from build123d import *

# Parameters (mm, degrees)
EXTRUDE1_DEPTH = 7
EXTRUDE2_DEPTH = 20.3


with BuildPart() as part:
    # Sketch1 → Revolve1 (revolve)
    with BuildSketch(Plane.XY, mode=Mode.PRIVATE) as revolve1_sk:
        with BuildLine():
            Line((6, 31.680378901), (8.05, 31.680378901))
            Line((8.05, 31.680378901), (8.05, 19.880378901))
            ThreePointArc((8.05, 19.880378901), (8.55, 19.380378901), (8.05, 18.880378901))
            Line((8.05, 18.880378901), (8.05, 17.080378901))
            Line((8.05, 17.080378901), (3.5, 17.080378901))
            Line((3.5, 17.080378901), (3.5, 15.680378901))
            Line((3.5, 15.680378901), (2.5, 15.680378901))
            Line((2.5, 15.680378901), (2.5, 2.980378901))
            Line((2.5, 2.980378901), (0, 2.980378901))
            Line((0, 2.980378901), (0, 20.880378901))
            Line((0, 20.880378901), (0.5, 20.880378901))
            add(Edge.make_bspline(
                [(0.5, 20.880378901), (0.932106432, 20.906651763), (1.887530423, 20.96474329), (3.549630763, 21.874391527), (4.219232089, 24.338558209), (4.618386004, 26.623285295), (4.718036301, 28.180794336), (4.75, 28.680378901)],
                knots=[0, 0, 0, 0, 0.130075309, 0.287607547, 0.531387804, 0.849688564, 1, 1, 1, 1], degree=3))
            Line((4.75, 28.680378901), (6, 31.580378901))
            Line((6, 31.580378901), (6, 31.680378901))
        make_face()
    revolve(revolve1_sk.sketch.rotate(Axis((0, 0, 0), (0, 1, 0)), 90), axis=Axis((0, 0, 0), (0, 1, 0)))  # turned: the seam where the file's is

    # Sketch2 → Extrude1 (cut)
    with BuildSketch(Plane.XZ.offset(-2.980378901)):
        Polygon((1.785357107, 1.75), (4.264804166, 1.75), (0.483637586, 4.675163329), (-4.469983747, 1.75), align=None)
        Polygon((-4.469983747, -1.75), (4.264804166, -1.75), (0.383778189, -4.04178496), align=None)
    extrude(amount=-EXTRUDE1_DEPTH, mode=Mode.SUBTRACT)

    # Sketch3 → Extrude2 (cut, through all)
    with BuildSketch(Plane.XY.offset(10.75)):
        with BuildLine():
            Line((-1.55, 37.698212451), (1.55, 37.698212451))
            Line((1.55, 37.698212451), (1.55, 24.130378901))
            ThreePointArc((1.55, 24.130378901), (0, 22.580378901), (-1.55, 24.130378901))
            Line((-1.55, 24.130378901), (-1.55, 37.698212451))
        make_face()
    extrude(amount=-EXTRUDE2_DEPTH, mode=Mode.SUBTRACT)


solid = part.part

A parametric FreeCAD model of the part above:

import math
import FreeCAD as App
import Part
import Sketcher


def add_polygon(sketch, points):
    """Adds a closed chain of lines whose ends are joined by coincident constraints."""
    first, n = sketch.GeometryCount, len(points)
    for a, b in zip(points, points[1:] + points[:1]):
        sketch.addGeometry(Part.LineSegment(App.Vector(*a, 0), App.Vector(*b, 0)), False)
    for i in range(n):
        sketch.addConstraint(Sketcher.Constraint("Coincident", first + i, 2, first + (i + 1) % n, 1))

doc = App.newDocument("Part")
params = doc.addObject("Spreadsheet::Sheet", "Params")
for row, (alias, value) in enumerate([
    ("sketch1_radius", "0.5 mm"),
    ("sketch1_width", "1 mm"),
    ("sketch1_width2", "2.5 mm"),
    ("sketch1_height", "0.1 mm"),
    ("sketch1_height2", "17.9 mm"),
    ("revolution_angle", "360 deg"),
    ("pocket1_length", "7 mm"),
    ("sketch3_radius", "1.55 mm"),
], start=1):
    params.set(f"A{row}", alias)
    params.set(f"B{row}", "=" + value)
    params.setAlias(f"B{row}", alias)

body = doc.addObject("PartDesign::Body", "Body")

# Sketch on XY plane
sketch1 = body.newObject("Sketcher::SketchObject", "Sketch")
sketch1.AttachmentSupport = (doc.getObject("XY_Plane"), [""])
sketch1.MapMode = "FlatFace"
sketch1.addGeometry(Part.LineSegment(App.Vector(8.05, 31.680379, 0), App.Vector(6, 31.680379, 0)), False)
sketch1.addGeometry(Part.LineSegment(App.Vector(6, 31.680379, 0), App.Vector(6, 31.580379, 0)), False)
sketch1.addGeometry(Part.LineSegment(App.Vector(6, 31.580379, 0), App.Vector(4.75, 28.680379, 0)), False)
sketch1.addGeometry(Part.BSplineCurve([App.Vector(0.5, 20.880379, 0), App.Vector(0.932106, 20.906652, 0), App.Vector(1.88753, 20.964743, 0), App.Vector(3.549631, 21.874392, 0), App.Vector(4.219232, 24.338558, 0), App.Vector(4.618386, 26.623285, 0), App.Vector(4.718036, 28.180794, 0), App.Vector(4.75, 28.680379, 0)], [4, 1, 1, 1, 1, 4], [0, 0.130075309, 0.287607547, 0.531387804, 0.849688564, 1], False, 3, [1, 1, 1, 1, 1, 1, 1, 1], False), False)
sketch1.addGeometry(Part.LineSegment(App.Vector(0.5, 20.880379, 0), App.Vector(0, 20.880379, 0)), False)
sketch1.addGeometry(Part.LineSegment(App.Vector(0, 20.880379, 0), App.Vector(0, 2.980379, 0)), False)
sketch1.addGeometry(Part.LineSegment(App.Vector(0, 2.980379, 0), App.Vector(2.5, 2.980379, 0)), False)
sketch1.addGeometry(Part.LineSegment(App.Vector(2.5, 2.980379, 0), App.Vector(2.5, 15.680379, 0)), False)
sketch1.addGeometry(Part.LineSegment(App.Vector(2.5, 15.680379, 0), App.Vector(3.5, 15.680379, 0)), False)
sketch1.addGeometry(Part.LineSegment(App.Vector(3.5, 15.680379, 0), App.Vector(3.5, 17.080379, 0)), False)
sketch1.addGeometry(Part.LineSegment(App.Vector(3.5, 17.080379, 0), App.Vector(8.05, 17.080379, 0)), False)
sketch1.addGeometry(Part.LineSegment(App.Vector(8.05, 17.080379, 0), App.Vector(8.05, 18.880379, 0)), False)
sketch1.addGeometry(Part.ArcOfCircle(Part.Circle(App.Vector(8.05, 19.380379, 0), App.Vector(0, 0, 1), 0.5), math.radians(-90), math.radians(90)), False)
sketch1.addGeometry(Part.LineSegment(App.Vector(8.05, 19.880379, 0), App.Vector(8.05, 31.680379, 0)), False)
sketch1.addConstraint(Sketcher.Constraint("Block", 3))
sketch1.addConstraint(Sketcher.Constraint("Coincident", 0, 2, 1, 1))
sketch1.addConstraint(Sketcher.Constraint("Coincident", 1, 2, 2, 1))
sketch1.addConstraint(Sketcher.Constraint("Coincident", 2, 2, 3, 2))
sketch1.addConstraint(Sketcher.Constraint("Coincident", 3, 1, 4, 1))
sketch1.addConstraint(Sketcher.Constraint("Coincident", 4, 2, 5, 1))
sketch1.addConstraint(Sketcher.Constraint("Coincident", 5, 2, 6, 1))
sketch1.addConstraint(Sketcher.Constraint("Coincident", 6, 2, 7, 1))
sketch1.addConstraint(Sketcher.Constraint("Coincident", 7, 2, 8, 1))
sketch1.addConstraint(Sketcher.Constraint("Coincident", 8, 2, 9, 1))
sketch1.addConstraint(Sketcher.Constraint("Coincident", 9, 2, 10, 1))
sketch1.addConstraint(Sketcher.Constraint("Coincident", 10, 2, 11, 1))
sketch1.addConstraint(Sketcher.Constraint("Coincident", 11, 2, 12, 1))
sketch1.addConstraint(Sketcher.Constraint("Coincident", 12, 2, 13, 1))
sketch1.addConstraint(Sketcher.Constraint("Coincident", 13, 2, 0, 1))
sketch1.addConstraint(Sketcher.Constraint("Horizontal", 0))
sketch1.addConstraint(Sketcher.Constraint("Vertical", 1))
sketch1.addConstraint(Sketcher.Constraint("Horizontal", 4))
sketch1.addConstraint(Sketcher.Constraint("Vertical", 5))
sketch1.addConstraint(Sketcher.Constraint("Horizontal", 6))
sketch1.addConstraint(Sketcher.Constraint("Vertical", 7))
sketch1.addConstraint(Sketcher.Constraint("Horizontal", 8))
sketch1.addConstraint(Sketcher.Constraint("Vertical", 9))
sketch1.addConstraint(Sketcher.Constraint("Horizontal", 10))
sketch1.addConstraint(Sketcher.Constraint("Vertical", 11))
sketch1.addConstraint(Sketcher.Constraint("Vertical", 13))
sketch1.addConstraint(Sketcher.Constraint("PointOnObject", 4, 2, -2))
sketch1.addConstraint(Sketcher.Constraint("Vertical", 12, 3, 10, 2))
sketch1.addConstraint(Sketcher.Constraint("Vertical", 11, 2, 12, 2))
sketch1.addConstraint(Sketcher.Constraint("Radius", 12, 0.5))
sketch1.addConstraint(Sketcher.Constraint("DistanceX", 8, 1, 8, 2, 1.0))
sketch1.addConstraint(Sketcher.Constraint("DistanceX", 6, 1, 6, 2, 2.5))
sketch1.addConstraint(Sketcher.Constraint("DistanceY", 1, 2, 1, 1, 0.1))
sketch1.addConstraint(Sketcher.Constraint("DistanceY", 5, 2, 5, 1, 17.9))
sketch1.addConstraint(Sketcher.Constraint("DistanceY", 7, 1, 7, 2, 12.7))
sketch1.addConstraint(Sketcher.Constraint("DistanceY", 9, 1, 9, 2, 1.4))
sketch1.addConstraint(Sketcher.Constraint("DistanceY", 11, 1, 11, 2, 1.8))
sketch1.addConstraint(Sketcher.Constraint("DistanceY", 13, 1, 13, 2, 11.8))
sketch1.addConstraint(Sketcher.Constraint("DistanceX", -1, 1, 0, 2, 6.0))
sketch1.addConstraint(Sketcher.Constraint("DistanceX", 0, 2, 0, 1, 2.05))
sketch1.setExpression("Constraints[29]", "Params.sketch1_radius")
sketch1.setExpression("Constraints[30]", "Params.sketch1_width")
sketch1.setExpression("Constraints[31]", "Params.sketch1_width2")
sketch1.setExpression("Constraints[32]", "Params.sketch1_height")
sketch1.setExpression("Constraints[33]", "Params.sketch1_height2")
revolution = body.newObject("PartDesign::Revolution", "Revolution")
revolution.Profile = sketch1
revolution.ReferenceAxis = (sketch1, ["V_Axis"])
revolution.setExpression("Angle", "Params.revolution_angle")

# Sketch on XZ plane
sketch2 = body.newObject("Sketcher::SketchObject", "Sketch001")
sketch2.AttachmentSupport = (doc.getObject("XZ_Plane"), [""])
sketch2.MapMode = "FlatFace"
sketch2.AttachmentOffset = App.Placement(App.Vector(0, 0, -2.980379), App.Rotation())
add_polygon(sketch2, [(4.3, 1.8), (0.5, 4.7), (-4.5, 1.8)])  # lines 0-2
add_polygon(sketch2, [(4.3, -1.8), (-4.5, -1.8), (0.4, -4)])  # lines 3-5
sketch2.addConstraint(Sketcher.Constraint("Horizontal", 2))
sketch2.addConstraint(Sketcher.Constraint("Horizontal", 3))
sketch2.addConstraint(Sketcher.Constraint("Symmetric", 1, 2, 3, 2, -1))
sketch2.addConstraint(Sketcher.Constraint("Parallel", 1, 5))
sketch2.addConstraint(Sketcher.Constraint("Vertical", 2, 2, 5, 2))
sketch2.addConstraint(Sketcher.Constraint("DistanceY", 3, 2, 1, 2, 3.5))
sketch2.addConstraint(Sketcher.Constraint("Distance", 1, 5.752821))
sketch2.addConstraint(Sketcher.Constraint("DistanceX", 2, 1, 2, 2, 8.734788))
sketch2.addConstraint(Sketcher.Constraint("DistanceX", -1, 1, 4, 2, 0.383778))
sketch2.addConstraint(Sketcher.Constraint("DistanceX", 1, 2, 0, 2, 4.953621))
sketch2.addConstraint(Sketcher.Constraint("DistanceX", 3, 2, 4, 2, 4.853762))
pocket1 = body.newObject("PartDesign::Pocket", "Pocket")
pocket1.Profile = sketch2
pocket1.setExpression("Length", "Params.pocket1_length")

# Sketch on XY plane
sketch3 = body.newObject("Sketcher::SketchObject", "Sketch002")
sketch3.AttachmentSupport = (doc.getObject("XY_Plane"), [""])
sketch3.MapMode = "FlatFace"
sketch3.AttachmentOffset = App.Placement(App.Vector(0, 0, 10.75), App.Rotation())
sketch3.addGeometry(Part.LineSegment(App.Vector(1.6, 37.7, 0), App.Vector(-1.6, 37.7, 0)), False)
sketch3.addGeometry(Part.LineSegment(App.Vector(-1.6, 37.7, 0), App.Vector(-1.6, 24.1, 0)), False)
sketch3.addGeometry(Part.ArcOfCircle(Part.Circle(App.Vector(0, 24.1, 0), App.Vector(0, 0, 1), 1.6), math.radians(180), math.radians(360)), False)
sketch3.addGeometry(Part.LineSegment(App.Vector(1.6, 24.1, 0), App.Vector(1.6, 37.7, 0)), False)
sketch3.addConstraint(Sketcher.Constraint("Coincident", 0, 2, 1, 1))
sketch3.addConstraint(Sketcher.Constraint("Tangent", 1, 2, 2, 1))
sketch3.addConstraint(Sketcher.Constraint("Tangent", 2, 2, 3, 1))
sketch3.addConstraint(Sketcher.Constraint("Coincident", 3, 2, 0, 1))
sketch3.addConstraint(Sketcher.Constraint("Horizontal", 0))
sketch3.addConstraint(Sketcher.Constraint("Vertical", 1))
sketch3.addConstraint(Sketcher.Constraint("Vertical", 3))
sketch3.addConstraint(Sketcher.Constraint("PointOnObject", 2, 3, -2))
sketch3.addConstraint(Sketcher.Constraint("Radius", 2, 1.55))
sketch3.addConstraint(Sketcher.Constraint("DistanceY", 1, 2, 1, 1, 13.567834))
sketch3.addConstraint(Sketcher.Constraint("DistanceY", -1, 1, 2, 3, 24.130379))
sketch3.setExpression("Constraints[8]", "Params.sketch3_radius")
pocket2 = body.newObject("PartDesign::Pocket", "Pocket001")
pocket2.Profile = sketch3
pocket2.Type = "ThroughAll"

doc.recompute()
